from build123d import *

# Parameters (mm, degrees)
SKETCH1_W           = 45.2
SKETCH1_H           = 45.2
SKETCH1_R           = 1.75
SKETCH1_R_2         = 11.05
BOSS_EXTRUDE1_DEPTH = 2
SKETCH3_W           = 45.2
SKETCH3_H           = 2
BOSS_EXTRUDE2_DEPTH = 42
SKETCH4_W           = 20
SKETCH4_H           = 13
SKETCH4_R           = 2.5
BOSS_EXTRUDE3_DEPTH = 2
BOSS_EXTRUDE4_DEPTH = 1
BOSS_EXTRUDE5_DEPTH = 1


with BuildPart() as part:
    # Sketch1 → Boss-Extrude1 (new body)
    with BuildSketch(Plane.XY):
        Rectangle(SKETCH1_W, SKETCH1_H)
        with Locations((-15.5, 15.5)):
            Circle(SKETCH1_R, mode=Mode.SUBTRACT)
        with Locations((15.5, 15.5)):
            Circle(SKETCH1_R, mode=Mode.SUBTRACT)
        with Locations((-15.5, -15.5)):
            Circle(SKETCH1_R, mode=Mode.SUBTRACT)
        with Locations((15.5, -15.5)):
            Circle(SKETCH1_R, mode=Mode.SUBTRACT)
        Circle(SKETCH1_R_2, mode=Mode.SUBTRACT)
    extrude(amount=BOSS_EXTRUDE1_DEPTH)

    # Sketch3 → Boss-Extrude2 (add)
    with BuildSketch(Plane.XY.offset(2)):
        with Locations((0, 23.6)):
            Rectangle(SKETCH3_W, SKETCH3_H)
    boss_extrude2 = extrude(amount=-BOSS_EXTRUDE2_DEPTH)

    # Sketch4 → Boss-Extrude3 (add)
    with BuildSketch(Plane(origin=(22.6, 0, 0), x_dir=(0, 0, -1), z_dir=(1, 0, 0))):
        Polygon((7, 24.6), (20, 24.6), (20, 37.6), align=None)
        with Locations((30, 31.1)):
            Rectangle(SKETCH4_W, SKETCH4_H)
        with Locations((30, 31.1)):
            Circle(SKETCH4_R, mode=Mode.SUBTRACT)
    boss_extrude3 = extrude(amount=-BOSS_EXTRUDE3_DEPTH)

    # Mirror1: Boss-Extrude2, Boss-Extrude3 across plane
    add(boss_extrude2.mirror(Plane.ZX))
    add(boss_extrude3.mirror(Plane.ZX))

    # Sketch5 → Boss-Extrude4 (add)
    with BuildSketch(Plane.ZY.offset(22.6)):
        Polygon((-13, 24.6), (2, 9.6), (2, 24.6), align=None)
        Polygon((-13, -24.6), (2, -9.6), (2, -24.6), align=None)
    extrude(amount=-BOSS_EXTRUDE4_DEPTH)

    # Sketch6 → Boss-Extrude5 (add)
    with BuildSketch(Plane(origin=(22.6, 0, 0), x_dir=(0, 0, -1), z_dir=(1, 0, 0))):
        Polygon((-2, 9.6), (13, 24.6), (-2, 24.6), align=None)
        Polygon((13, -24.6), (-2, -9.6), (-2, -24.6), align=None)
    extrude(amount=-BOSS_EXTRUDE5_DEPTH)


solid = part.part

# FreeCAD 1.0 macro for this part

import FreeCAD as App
import Part
import Sketcher
from FreeCAD import Vector
Q = App.Units.Quantity


def add_polygon(sketch, points):
    """Adds a closed chain of lines whose ends are joined by coincident constraints."""
    first, n = sketch.GeometryCount, len(points)
    for a, b in zip(points, points[1:] + points[:1]):
        sketch.addGeometry(Part.LineSegment(App.Vector(*a, 0), App.Vector(*b, 0)), False)
    for i in range(n):
        sketch.addConstraint(Sketcher.Constraint("Coincident", first + i, 2, first + (i + 1) % n, 1))

doc = App.newDocument("Part")
params = doc.addObject("Spreadsheet::Sheet", "Params")
for row, (alias, value) in enumerate([
    ("sketch1_diameter", "3.5 mm"),
    ("sketch1_diameter2", "22.1 mm"),
    ("sketch1_width", "45.2 mm"),
    ("pad1_length", "2 mm"),
    ("sketch2_height", "2 mm"),
    ("sketch2_width", "45.2 mm"),
    ("pad2_length", "42 mm"),
    ("sketch3_diameter", "5 mm"),
    ("sketch3_width", "13 mm"),
    ("sketch3_height", "33 mm"),
    ("sketch3_height2", "20 mm"),
    ("pad3_length", "2 mm"),
    ("sketch4_width", "15 mm"),
    ("pad4_length", "1 mm"),
    ("sketch5_width", "15 mm"),
    ("pad5_length", "1 mm"),
], start=1):
    params.set(f"A{row}", alias)
    params.set(f"B{row}", "=" + value)
    params.setAlias(f"B{row}", alias)

body = doc.addObject("PartDesign::Body", "Body")

# Sketch on XY plane
sketch1 = body.newObject("Sketcher::SketchObject", "Sketch")
sketch1.AttachmentSupport = (doc.getObject("XY_Plane"), [""])
sketch1.MapMode = "FlatFace"
add_polygon(sketch1, [(-22.6, 22.6), (-22.6, -22.6), (22.6, -22.6), (22.6, 22.6)])  # lines 0-3
sketch1.addGeometry(Part.Circle(Vector(-15.5, -15.5, 0), Vector(0, 0, 1), 1.8), False)  # 4
sketch1.addGeometry(Part.Circle(Vector(15.5, -15.5, 0), Vector(0, 0, 1), 1.8), False)  # 5
sketch1.addGeometry(Part.Circle(Vector(-15.5, 15.5, 0), Vector(0, 0, 1), 1.8), False)  # 6
sketch1.addGeometry(Part.Circle(Vector(0, 0, 0), Vector(0, 0, 1), 11.1), False)  # 7
sketch1.addGeometry(Part.Circle(Vector(15.5, 15.5, 0), Vector(0, 0, 1), 1.8), False)  # 8
sketch1.addConstraint([
    Sketcher.Constraint("Vertical", 0),
    Sketcher.Constraint("Horizontal", 1),
    Sketcher.Constraint("Vertical", 2),
    Sketcher.Constraint("Horizontal", 3),
    Sketcher.Constraint("Coincident", 7, 3, -1, 1),
    Sketcher.Constraint("Equal", 4, 5),
    Sketcher.Constraint("Equal", 5, 6),
    Sketcher.Constraint("Equal", 6, 8),
    Sketcher.Constraint("Symmetric", 5, 3, 6, 3, -1, 1),
    Sketcher.Constraint("Symmetric", 4, 3, 8, 3, -1, 1),
    Sketcher.Constraint("Symmetric", 0, 2, 2, 2, -1, 1),
    Sketcher.Constraint("Symmetric", 4, 3, 5, 3, -2),
    Sketcher.Constraint("Equal", 3, 0),
    Sketcher.Constraint("Diameter", 4, Q("3.5 mm")),
    Sketcher.Constraint("Diameter", 7, Q("22.1 mm")),
    Sketcher.Constraint("DistanceX", 1, 1, 1, 2, Q("45.2 mm")),
    Sketcher.Constraint("DistanceX", 4, 3, 5, 3, Q("31 mm")),
    Sketcher.Constraint("DistanceY", 4, 3, 6, 3, Q("31 mm")),
])
sketch1.setExpression("Constraints[17]", "Params.sketch1_diameter")
sketch1.setExpression("Constraints[18]", "Params.sketch1_diameter2")
sketch1.setExpression("Constraints[19]", "Params.sketch1_width")
pad1 = body.newObject("PartDesign::Pad", "Pad")
pad1.Profile = sketch1
pad1.setExpression("Length", "Params.pad1_length")

# Sketch on XY plane
sketch2 = body.newObject("Sketcher::SketchObject", "Sketch001")
sketch2.AttachmentSupport = (doc.getObject("XY_Plane"), [""])
sketch2.MapMode = "FlatFace"
sketch2.AttachmentOffset = App.Placement(Vector(0, 0, 2), App.Rotation())
add_polygon(sketch2, [(-22.6, 24.6), (-22.6, 22.6), (22.6, 22.6), (22.6, 24.6)])  # lines 0-3
sketch2.addConstraint([
    Sketcher.Constraint("Vertical", 0),
    Sketcher.Constraint("Horizontal", 1),
    Sketcher.Constraint("Vertical", 2),
    Sketcher.Constraint("Horizontal", 3),
    Sketcher.Constraint("DistanceY", 0, 2, 0, 1, Q("2 mm")),
    Sketcher.Constraint("DistanceX", 1, 1, 1, 2, Q("45.2 mm")),
    Sketcher.Constraint("DistanceX", 0, 2, -1, 1, Q("22.6 mm")),
    Sketcher.Constraint("DistanceY", -1, 1, 0, 2, Q("22.6 mm")),
])
sketch2.setExpression("Constraints[8]", "Params.sketch2_height")
sketch2.setExpression("Constraints[9]", "Params.sketch2_width")
pad2 = body.newObject("PartDesign::Pad", "Pad001")
pad2.Profile = sketch2
pad2.setExpression("Length", "Params.pad2_length")
pad2.Reversed = True

# Sketch on YZ plane
sketch3 = body.newObject("Sketcher::SketchObject", "Sketch002")
sketch3.AttachmentSupport = (doc.getObject("YZ_Plane"), [""])
sketch3.MapMode = "FlatFace"
sketch3.AttachmentOffset = App.Placement(Vector(0, 0, 22.6), App.Rotation())
add_polygon(sketch3, [(24.6, -7), (24.6, -40), (37.6, -40), (37.6, -20)])  # lines 0-3
sketch3.addGeometry(Part.Circle(Vector(31.1, -30, 0), Vector(0, 0, 1), 2.5), False)  # 4
sketch3.addConstraint([
    Sketcher.Constraint("Vertical", 0),
    Sketcher.Constraint("Horizontal", 1),
    Sketcher.Constraint("Vertical", 2),
    Sketcher.Constraint("Diameter", 4, Q("5 mm")),
    Sketcher.Constraint("DistanceX", 1, 1, 1, 2, Q("13 mm")),
    Sketcher.Constraint("DistanceY", 0, 2, 0, 1, Q("33 mm")),
    Sketcher.Constraint("DistanceY", 2, 1, 2, 2, Q("20 mm")),
    Sketcher.Constraint("DistanceY", 4, 3, -1, 1, Q("30 mm")),
    Sketcher.Constraint("DistanceY", 0, 2, -1, 1, Q("40 mm")),
    Sketcher.Constraint("DistanceX", -1, 1, 4, 3, Q("31.1 mm")),
    Sketcher.Constraint("DistanceX", -1, 1, 0, 2, Q("24.6 mm")),
])
sketch3.setExpression("Constraints[7]", "Params.sketch3_diameter")
sketch3.setExpression("Constraints[8]", "Params.sketch3_width")
sketch3.setExpression("Constraints[9]", "Params.sketch3_height")
sketch3.setExpression("Constraints[10]", "Params.sketch3_height2")
pad3 = body.newObject("PartDesign::Pad", "Pad002")
pad3.Profile = sketch3
pad3.setExpression("Length", "Params.pad3_length")
pad3.Reversed = True
doc.recompute()

mirrored = body.newObject("PartDesign::Mirrored", "Mirrored")
mirrored.Originals = [pad2, pad3]
mirrored.MirrorPlane = (doc.getObject("XZ_Plane"), [""])
body.Tip = mirrored

# Sketch on YZ plane
sketch4 = body.newObject("Sketcher::SketchObject", "Sketch003")
sketch4.AttachmentSupport = (doc.getObject("YZ_Plane"), [""])
sketch4.MapMode = "FlatFace"
sketch4.AttachmentOffset = App.Placement(Vector(0, 0, -22.6), App.Rotation())
add_polygon(sketch4, [(25, -13), (10, 2), (25, 2)])  # lines 0-2
add_polygon(sketch4, [(-10, 2), (-25, -13), (-25, 2)])  # lines 3-5
sketch4.addConstraint([
    Sketcher.Constraint("Horizontal", 1),
    Sketcher.Constraint("Vertical", 2),
    Sketcher.Constraint("Vertical", 4),
    Sketcher.Constraint("Horizontal", 5),
    Sketcher.Constraint("Symmetric", 2, 2, 3, 2, -2),
    Sketcher.Constraint("Symmetric", 0, 2, 5, 2, -2),
    Sketcher.Constraint("Perpendicular", 0, 3),
    Sketcher.Constraint("DistanceX", 1, 1, 1, 2, Q("15 mm")),
    Sketcher.Constraint("DistanceY", -1, 1, 0, 2, Q("2 mm")),
    Sketcher.Constraint("DistanceX", -1, 1, 0, 2, Q("9.6 mm")),
])
sketch4.setExpression("Constraints[13]", "Params.sketch4_width")
pad4 = body.newObject("PartDesign::Pad", "Pad003")
pad4.Profile = sketch4
pad4.setExpression("Length", "Params.pad4_length")

# Sketch on YZ plane
sketch5 = body.newObject("Sketcher::SketchObject", "Sketch004")
sketch5.AttachmentSupport = (doc.getObject("YZ_Plane"), [""])
sketch5.MapMode = "FlatFace"
sketch5.AttachmentOffset = App.Placement(Vector(0, 0, 22.6), App.Rotation())
add_polygon(sketch5, [(10, 2), (25, -13), (25, 2)])  # lines 0-2
add_polygon(sketch5, [(-25, -13), (-10, 2), (-25, 2)])  # lines 3-5
sketch5.addConstraint([
    Sketcher.Constraint("Vertical", 1),
    Sketcher.Constraint("Horizontal", 2),
    Sketcher.Constraint("Horizontal", 4),
    Sketcher.Constraint("Vertical", 5),
    Sketcher.Constraint("Symmetric", 2, 2, 3, 2, -2),
    Sketcher.Constraint("Symmetric", 0, 2, 5, 2, -2),
    Sketcher.Constraint("Perpendicular", 0, 3),
    Sketcher.Constraint("DistanceX", 2, 2, 2, 1, Q("15 mm")),
    Sketcher.Constraint("DistanceY", 0, 2, -1, 1, Q("13 mm")),
    Sketcher.Constraint("DistanceX", -1, 1, 0, 2, Q("24.6 mm")),
])
sketch5.setExpression("Constraints[13]", "Params.sketch5_width")
pad5 = body.newObject("PartDesign::Pad", "Pad004")
pad5.Profile = sketch5
pad5.setExpression("Length", "Params.pad5_length")
pad5.Reversed = True

doc.recompute()
